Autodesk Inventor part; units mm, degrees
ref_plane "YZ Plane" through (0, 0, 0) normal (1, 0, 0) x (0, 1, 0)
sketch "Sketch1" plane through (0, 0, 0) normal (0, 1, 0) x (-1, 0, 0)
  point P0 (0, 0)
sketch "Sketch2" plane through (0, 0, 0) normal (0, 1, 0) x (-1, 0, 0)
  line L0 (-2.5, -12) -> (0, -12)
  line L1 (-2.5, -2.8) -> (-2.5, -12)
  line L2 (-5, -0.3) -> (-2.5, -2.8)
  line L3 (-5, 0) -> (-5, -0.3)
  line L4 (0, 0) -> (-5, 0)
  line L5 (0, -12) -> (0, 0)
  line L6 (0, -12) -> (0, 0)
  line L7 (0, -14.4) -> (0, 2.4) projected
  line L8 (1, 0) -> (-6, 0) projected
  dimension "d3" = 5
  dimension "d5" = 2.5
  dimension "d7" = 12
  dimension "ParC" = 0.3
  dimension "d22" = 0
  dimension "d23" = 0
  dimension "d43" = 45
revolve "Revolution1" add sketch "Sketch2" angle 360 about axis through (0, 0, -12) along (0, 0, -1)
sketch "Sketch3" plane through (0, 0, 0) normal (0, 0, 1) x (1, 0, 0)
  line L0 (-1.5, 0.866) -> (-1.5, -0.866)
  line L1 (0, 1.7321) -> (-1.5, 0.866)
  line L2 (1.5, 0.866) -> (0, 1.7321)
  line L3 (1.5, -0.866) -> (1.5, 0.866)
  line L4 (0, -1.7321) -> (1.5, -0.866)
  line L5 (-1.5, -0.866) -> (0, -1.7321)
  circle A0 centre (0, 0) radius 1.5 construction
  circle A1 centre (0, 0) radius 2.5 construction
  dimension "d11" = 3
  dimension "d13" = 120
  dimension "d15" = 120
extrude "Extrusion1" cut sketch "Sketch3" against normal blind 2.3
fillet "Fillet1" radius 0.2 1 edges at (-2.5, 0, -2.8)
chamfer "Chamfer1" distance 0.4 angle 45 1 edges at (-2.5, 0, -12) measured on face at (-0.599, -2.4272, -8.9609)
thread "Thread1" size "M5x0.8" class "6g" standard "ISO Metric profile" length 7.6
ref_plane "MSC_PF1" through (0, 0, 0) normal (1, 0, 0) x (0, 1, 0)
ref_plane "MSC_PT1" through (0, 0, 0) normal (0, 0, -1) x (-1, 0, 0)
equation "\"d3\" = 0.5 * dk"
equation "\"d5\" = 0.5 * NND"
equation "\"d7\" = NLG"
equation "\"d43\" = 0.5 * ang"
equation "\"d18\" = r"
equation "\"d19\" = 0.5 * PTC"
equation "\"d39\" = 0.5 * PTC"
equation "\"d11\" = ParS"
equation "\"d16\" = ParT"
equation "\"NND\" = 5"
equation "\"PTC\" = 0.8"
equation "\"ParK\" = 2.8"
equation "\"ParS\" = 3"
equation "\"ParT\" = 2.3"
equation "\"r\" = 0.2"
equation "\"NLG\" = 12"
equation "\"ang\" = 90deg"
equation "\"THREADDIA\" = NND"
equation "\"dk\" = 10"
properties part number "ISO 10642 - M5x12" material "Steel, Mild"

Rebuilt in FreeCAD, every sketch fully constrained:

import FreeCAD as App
import Part
import Sketcher

V = App.Vector
Q = App.Units.Quantity


def edges_at(feature, points):
    """Names of the edges that pass closest to the given points."""
    edges = feature.Shape.Edges
    near = lambda p: min(range(len(edges)), key=lambda i: edges[i].distToShape(Part.Vertex(*p))[0])
    return sorted({f"Edge{near(p) + 1}" for p in points})

doc = App.newDocument("Part")
body = doc.addObject("PartDesign::Body", "Body")

# Sketch on XZ plane
sketch1 = body.newObject("Sketcher::SketchObject", "Sketch")
sketch1.AttachmentSupport = (doc.getObject("XZ_Plane"), [""])
sketch1.MapMode = "FlatFace"
sketch1.addGeometry([
    Part.LineSegment(V(2.5, -2.8, 0), V(2.5, -12, 0)),  # 0
    Part.LineSegment(V(2.5, -12, 0), V(0, -12, 0)),  # 1
    Part.LineSegment(V(0, -12, 0), V(0, 0, 0)),  # 2
    Part.LineSegment(V(0, 0, 0), V(5, 0, 0)),  # 3
    Part.LineSegment(V(5, 0, 0), V(5, -0.3, 0)),  # 4
    Part.LineSegment(V(5, -0.3, 0), V(2.5, -2.8, 0)),  # 5
], False)
sketch1.addConstraint([
    Sketcher.Constraint("Coincident", 0, 2, 1, 1),
    Sketcher.Constraint("Coincident", 1, 2, 2, 1),
    Sketcher.Constraint("Coincident", 2, 2, 3, 1),
    Sketcher.Constraint("Coincident", 3, 2, 4, 1),
    Sketcher.Constraint("Coincident", 4, 2, 5, 1),
    Sketcher.Constraint("Coincident", 5, 2, 0, 1),
    Sketcher.Constraint("Vertical", 0),
    Sketcher.Constraint("Horizontal", 1),
    Sketcher.Constraint("Vertical", 2),
    Sketcher.Constraint("Horizontal", 3),
    Sketcher.Constraint("Vertical", 4),
    Sketcher.Constraint("Coincident", 2, 2, -1, 1),
    Sketcher.Constraint("DistanceX", 3, 1, 3, 2, Q("5 mm")),
    Sketcher.Constraint("DistanceY", 2, 1, 2, 2, Q("12 mm")),
    Sketcher.Constraint("DistanceX", 1, 2, 1, 1, Q("2.5 mm")),
    Sketcher.Constraint("DistanceY", 4, 2, 4, 1, Q("0.3 mm")),
    Sketcher.Constraint("DistanceY", 5, 2, 4, 2, Q("2.5 mm")),
])
revolution = body.newObject("PartDesign::Revolution", "Revolution")
revolution.Profile = sketch1
revolution.ReferenceAxis = (sketch1, ["V_Axis"])
revolution.Angle = 360

# Sketch on XY plane
sketch2 = body.newObject("Sketcher::SketchObject", "Sketch001")
sketch2.AttachmentSupport = (doc.getObject("XY_Plane"), [""])
sketch2.MapMode = "FlatFace"
sketch2.addGeometry([
    Part.LineSegment(V(0, 1.7, 0), V(-1.5, 0.9, 0)),  # 0
    Part.LineSegment(V(-1.5, 0.9, 0), V(-1.5, -0.9, 0)),  # 1
    Part.LineSegment(V(-1.5, -0.9, 0), V(0, -1.7, 0)),  # 2
    Part.LineSegment(V(0, -1.7, 0), V(1.5, -0.9, 0)),  # 3
    Part.LineSegment(V(1.5, -0.9, 0), V(1.5, 0.9, 0)),  # 4
    Part.LineSegment(V(1.5, 0.9, 0), V(0, 1.7, 0)),  # 5
], False)
sketch2.addConstraint([
    Sketcher.Constraint("Coincident", 0, 2, 1, 1),
    Sketcher.Constraint("Coincident", 1, 2, 2, 1),
    Sketcher.Constraint("Coincident", 2, 2, 3, 1),
    Sketcher.Constraint("Coincident", 3, 2, 4, 1),
    Sketcher.Constraint("Coincident", 4, 2, 5, 1),
    Sketcher.Constraint("Coincident", 5, 2, 0, 1),
    Sketcher.Constraint("Vertical", 1),
    Sketcher.Constraint("Vertical", 4),
    Sketcher.Constraint("Symmetric", 0, 2, 3, 2, -1, 1),
    Sketcher.Constraint("Symmetric", 2, 2, 5, 2, -1, 1),
    Sketcher.Constraint("PointOnObject", 2, 2, -2),
    Sketcher.Constraint("Parallel", 2, 5),
    Sketcher.Constraint("Horizontal", 1, 2, 3, 2),
    Sketcher.Constraint("DistanceX", 1, 2, 3, 2, Q("3 mm")),
    Sketcher.Constraint("DistanceY", 1, 2, 1, 1, Q("1.732 mm")),
    Sketcher.Constraint("Distance", 0, Q("1.732 mm")),
])
pocket1 = body.newObject("PartDesign::Pocket", "Pocket")
pocket1.Profile = sketch2
pocket1.Length = 2.3
doc.recompute()

fillet = body.newObject("PartDesign::Fillet", "Fillet")
fillet.Base = (pocket1, edges_at(pocket1, [(-2.5, 0, -2.8)]))
fillet.Radius = 0.2
doc.recompute()

chamfer = body.newObject("PartDesign::Chamfer", "Chamfer")
chamfer.Base = (fillet, edges_at(fillet, [(-2.5, 0, -12)]))
chamfer.Size = 0.4

doc.recompute()
